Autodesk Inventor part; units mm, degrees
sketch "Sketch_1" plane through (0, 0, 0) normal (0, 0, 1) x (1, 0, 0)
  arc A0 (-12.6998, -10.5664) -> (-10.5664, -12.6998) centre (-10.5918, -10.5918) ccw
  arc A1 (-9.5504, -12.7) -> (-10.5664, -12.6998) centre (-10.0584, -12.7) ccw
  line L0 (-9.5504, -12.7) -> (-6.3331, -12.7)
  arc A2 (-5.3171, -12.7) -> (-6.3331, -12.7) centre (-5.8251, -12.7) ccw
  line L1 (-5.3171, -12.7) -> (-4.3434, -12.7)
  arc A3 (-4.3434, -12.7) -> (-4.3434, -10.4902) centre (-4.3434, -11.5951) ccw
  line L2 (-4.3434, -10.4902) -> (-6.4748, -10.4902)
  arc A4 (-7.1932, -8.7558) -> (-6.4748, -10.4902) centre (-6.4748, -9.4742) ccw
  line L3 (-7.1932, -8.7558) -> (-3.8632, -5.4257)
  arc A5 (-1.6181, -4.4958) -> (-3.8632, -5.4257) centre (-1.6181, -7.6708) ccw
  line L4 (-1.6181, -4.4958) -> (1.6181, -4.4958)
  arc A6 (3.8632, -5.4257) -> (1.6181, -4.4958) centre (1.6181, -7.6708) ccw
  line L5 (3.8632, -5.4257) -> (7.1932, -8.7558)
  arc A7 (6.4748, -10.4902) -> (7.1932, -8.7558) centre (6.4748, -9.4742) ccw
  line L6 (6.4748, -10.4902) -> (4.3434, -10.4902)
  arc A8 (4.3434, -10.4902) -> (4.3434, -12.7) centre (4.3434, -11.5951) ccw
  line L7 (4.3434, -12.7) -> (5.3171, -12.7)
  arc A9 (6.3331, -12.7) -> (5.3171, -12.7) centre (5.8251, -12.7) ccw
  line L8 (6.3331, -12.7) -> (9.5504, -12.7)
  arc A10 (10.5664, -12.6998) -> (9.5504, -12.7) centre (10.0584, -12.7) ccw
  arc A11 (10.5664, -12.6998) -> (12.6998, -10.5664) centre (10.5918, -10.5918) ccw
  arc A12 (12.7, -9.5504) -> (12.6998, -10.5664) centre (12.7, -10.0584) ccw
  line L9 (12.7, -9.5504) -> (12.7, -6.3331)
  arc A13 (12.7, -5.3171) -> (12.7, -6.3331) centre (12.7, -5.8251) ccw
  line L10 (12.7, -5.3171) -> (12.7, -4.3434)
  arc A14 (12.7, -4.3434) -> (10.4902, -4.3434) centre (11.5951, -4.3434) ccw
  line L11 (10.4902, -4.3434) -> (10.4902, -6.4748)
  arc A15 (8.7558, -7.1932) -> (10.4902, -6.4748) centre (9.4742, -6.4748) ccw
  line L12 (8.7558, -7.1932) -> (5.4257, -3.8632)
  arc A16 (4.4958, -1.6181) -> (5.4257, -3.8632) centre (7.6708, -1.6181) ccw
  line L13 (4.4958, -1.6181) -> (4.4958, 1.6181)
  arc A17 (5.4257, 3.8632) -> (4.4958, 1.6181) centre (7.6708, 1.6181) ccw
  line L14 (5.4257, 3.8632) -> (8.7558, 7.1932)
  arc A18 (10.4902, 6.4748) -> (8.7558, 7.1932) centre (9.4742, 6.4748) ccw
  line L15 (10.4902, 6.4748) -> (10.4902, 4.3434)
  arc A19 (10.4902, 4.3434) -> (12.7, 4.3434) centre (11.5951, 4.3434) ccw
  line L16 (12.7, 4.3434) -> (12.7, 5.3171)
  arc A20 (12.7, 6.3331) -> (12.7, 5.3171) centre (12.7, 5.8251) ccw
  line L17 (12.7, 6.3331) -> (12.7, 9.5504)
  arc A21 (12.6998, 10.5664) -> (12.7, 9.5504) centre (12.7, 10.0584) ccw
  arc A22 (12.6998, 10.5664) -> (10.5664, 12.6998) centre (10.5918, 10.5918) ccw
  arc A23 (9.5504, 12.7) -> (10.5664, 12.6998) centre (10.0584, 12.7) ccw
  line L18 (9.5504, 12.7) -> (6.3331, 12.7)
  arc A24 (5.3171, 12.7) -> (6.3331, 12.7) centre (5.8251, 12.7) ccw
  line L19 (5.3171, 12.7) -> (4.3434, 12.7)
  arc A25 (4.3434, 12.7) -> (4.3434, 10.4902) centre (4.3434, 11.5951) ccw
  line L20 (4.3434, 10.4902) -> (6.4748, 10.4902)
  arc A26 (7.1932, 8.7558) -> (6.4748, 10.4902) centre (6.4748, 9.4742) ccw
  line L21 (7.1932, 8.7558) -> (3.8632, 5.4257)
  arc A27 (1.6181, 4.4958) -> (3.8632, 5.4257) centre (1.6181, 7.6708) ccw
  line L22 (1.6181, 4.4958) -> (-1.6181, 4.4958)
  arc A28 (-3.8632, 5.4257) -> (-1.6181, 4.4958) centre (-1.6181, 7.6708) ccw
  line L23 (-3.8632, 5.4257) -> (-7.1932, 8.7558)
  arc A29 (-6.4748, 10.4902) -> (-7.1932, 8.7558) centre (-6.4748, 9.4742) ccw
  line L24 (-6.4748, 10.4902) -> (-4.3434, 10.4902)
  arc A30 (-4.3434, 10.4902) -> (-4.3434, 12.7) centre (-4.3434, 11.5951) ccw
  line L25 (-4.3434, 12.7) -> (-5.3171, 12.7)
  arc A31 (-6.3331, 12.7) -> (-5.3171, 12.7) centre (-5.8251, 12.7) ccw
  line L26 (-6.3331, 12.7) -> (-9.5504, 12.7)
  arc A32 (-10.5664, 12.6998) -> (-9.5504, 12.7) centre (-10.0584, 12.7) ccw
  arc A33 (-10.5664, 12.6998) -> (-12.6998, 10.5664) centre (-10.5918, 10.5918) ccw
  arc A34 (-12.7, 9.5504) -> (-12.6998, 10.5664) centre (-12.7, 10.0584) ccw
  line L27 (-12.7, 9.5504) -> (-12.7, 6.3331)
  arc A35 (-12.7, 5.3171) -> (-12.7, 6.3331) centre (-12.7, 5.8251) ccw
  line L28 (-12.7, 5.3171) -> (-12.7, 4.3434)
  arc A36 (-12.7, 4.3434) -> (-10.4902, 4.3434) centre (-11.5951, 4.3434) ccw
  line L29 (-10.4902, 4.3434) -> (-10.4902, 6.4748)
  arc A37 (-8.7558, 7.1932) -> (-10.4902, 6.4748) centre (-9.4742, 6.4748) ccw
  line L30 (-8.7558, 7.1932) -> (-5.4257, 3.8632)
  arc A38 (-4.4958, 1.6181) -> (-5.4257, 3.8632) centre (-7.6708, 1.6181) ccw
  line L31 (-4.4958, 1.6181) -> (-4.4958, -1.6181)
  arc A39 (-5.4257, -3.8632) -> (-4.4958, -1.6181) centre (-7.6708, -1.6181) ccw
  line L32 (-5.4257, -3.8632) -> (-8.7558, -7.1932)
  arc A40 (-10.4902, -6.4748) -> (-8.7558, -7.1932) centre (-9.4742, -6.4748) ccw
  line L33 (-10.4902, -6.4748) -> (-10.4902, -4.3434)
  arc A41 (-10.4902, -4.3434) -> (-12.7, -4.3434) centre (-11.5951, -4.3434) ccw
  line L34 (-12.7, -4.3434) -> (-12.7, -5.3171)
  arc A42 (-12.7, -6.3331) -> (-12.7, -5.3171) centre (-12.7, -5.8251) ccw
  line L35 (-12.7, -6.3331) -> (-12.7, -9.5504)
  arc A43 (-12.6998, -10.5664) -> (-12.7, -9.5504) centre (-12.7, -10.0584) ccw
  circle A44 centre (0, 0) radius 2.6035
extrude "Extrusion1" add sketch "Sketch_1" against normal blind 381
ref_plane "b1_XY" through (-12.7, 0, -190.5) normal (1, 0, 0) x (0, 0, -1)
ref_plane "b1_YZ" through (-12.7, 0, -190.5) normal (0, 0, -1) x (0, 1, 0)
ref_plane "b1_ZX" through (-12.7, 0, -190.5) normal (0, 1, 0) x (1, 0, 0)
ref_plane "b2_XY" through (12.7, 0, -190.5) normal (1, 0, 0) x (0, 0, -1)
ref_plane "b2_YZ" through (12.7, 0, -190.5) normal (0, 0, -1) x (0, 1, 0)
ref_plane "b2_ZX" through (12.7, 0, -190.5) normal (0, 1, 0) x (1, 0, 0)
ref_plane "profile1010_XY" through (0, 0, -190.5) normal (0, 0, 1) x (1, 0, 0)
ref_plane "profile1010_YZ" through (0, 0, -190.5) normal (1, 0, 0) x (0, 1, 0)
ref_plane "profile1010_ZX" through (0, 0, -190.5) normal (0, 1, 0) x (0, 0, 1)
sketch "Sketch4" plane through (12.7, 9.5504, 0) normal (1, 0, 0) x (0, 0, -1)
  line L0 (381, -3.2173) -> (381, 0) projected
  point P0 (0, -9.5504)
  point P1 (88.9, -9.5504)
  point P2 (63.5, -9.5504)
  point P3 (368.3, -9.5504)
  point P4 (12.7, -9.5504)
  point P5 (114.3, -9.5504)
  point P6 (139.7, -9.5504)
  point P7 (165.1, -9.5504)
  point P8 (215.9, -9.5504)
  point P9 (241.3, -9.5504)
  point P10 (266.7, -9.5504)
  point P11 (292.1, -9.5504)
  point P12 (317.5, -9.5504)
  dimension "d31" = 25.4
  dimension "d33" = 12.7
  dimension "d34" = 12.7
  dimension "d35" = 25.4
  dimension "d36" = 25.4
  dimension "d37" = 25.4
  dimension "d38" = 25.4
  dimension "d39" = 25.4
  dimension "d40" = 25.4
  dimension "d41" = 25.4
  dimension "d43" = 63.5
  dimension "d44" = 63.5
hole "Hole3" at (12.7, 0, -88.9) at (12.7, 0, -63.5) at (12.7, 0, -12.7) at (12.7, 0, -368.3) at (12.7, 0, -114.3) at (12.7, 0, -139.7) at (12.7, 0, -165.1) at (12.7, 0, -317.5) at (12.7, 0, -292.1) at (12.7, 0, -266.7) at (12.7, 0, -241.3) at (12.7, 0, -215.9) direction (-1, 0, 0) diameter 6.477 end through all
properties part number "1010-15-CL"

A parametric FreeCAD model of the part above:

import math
import FreeCAD as App
import Part
import Sketcher

V = App.Vector
Q = App.Units.Quantity

doc = App.newDocument("Part")
body = doc.addObject("PartDesign::Body", "Body")

sketch1 = body.newObject("Sketcher::SketchObject", "Sketch")
sketch1.AttachmentSupport = (doc.getObject("XY_Plane"), [""])
sketch1.MapMode = "FlatFace"
sketch1.addGeometry([
    Part.ArcOfCircle(Part.Circle(V(-12.7, -10.1, 0), V(0, 0, 1), 0.5), math.radians(-90), math.radians(90)),
    Part.ArcOfCircle(Part.Circle(V(-10.6, -10.6, 0), V(0, 0, 1), 2.1), math.radians(179), math.radians(271)),
    Part.ArcOfCircle(Part.Circle(V(-10.1, -12.7, 0), V(0, 0, 1), 0.5), math.radians(0), math.radians(180)),
    Part.LineSegment(V(-9.6, -12.7, 0), V(-6.3, -12.7, 0)),
    Part.ArcOfCircle(Part.Circle(V(-5.8, -12.7, 0), V(0, 0, 1), 0.5), math.radians(0), math.radians(180)),
    Part.LineSegment(V(-5.3, -12.7, 0), V(-4.3, -12.7, 0)),
    Part.ArcOfCircle(Part.Circle(V(-4.3, -11.6, 0), V(0, 0, 1), 1.1), math.radians(-90), math.radians(90)),
    Part.LineSegment(V(-4.3, -10.5, 0), V(-6.5, -10.5, 0)),
    Part.ArcOfCircle(Part.Circle(V(-6.5, -9.5, 0), V(0, 0, 1), 1), math.radians(135), math.radians(270)),
    Part.LineSegment(V(-7.2, -8.8, 0), V(-3.9, -5.4, 0)),
    Part.ArcOfCircle(Part.Circle(V(-1.6, -7.7, 0), V(0, 0, 1), 3.2), math.radians(90), math.radians(135)),
    Part.LineSegment(V(-1.6, -4.5, 0), V(1.6, -4.5, 0)),
    Part.ArcOfCircle(Part.Circle(V(1.6, -7.7, 0), V(0, 0, 1), 3.2), math.radians(45), math.radians(90)),
    Part.LineSegment(V(3.9, -5.4, 0), V(7.2, -8.8, 0)),
    Part.ArcOfCircle(Part.Circle(V(6.5, -9.5, 0), V(0, 0, 1), 1), math.radians(-90), math.radians(45)),
    Part.LineSegment(V(6.5, -10.5, 0), V(4.3, -10.5, 0)),
    Part.ArcOfCircle(Part.Circle(V(4.3, -11.6, 0), V(0, 0, 1), 1.1), math.radians(90), math.radians(270)),
    Part.LineSegment(V(4.3, -12.7, 0), V(5.3, -12.7, 0)),
    Part.ArcOfCircle(Part.Circle(V(5.8, -12.7, 0), V(0, 0, 1), 0.5), math.radians(0), math.radians(180)),
    Part.LineSegment(V(6.3, -12.7, 0), V(9.6, -12.7, 0)),
    Part.ArcOfCircle(Part.Circle(V(10.1, -12.7, 0), V(0, 0, 1), 0.5), math.radians(0), math.radians(180)),
    Part.ArcOfCircle(Part.Circle(V(10.6, -10.6, 0), V(0, 0, 1), 2.1), math.radians(-91), math.radians(1)),
    Part.ArcOfCircle(Part.Circle(V(12.7, -10.1, 0), V(0, 0, 1), 0.5), math.radians(90), math.radians(270)),
    Part.LineSegment(V(12.7, -9.6, 0), V(12.7, -6.3, 0)),
    Part.ArcOfCircle(Part.Circle(V(12.7, -5.8, 0), V(0, 0, 1), 0.5), math.radians(90), math.radians(270)),
    Part.LineSegment(V(12.7, -5.3, 0), V(12.7, -4.3, 0)),
    Part.ArcOfCircle(Part.Circle(V(11.6, -4.3, 0), V(0, 0, 1), 1.1), math.radians(0), math.radians(180)),
    Part.LineSegment(V(10.5, -4.3, 0), V(10.5, -6.5, 0)),
    Part.ArcOfCircle(Part.Circle(V(9.5, -6.5, 0), V(0, 0, 1), 1), math.radians(-135), math.radians(0)),
    Part.LineSegment(V(8.8, -7.2, 0), V(5.4, -3.9, 0)),
    Part.ArcOfCircle(Part.Circle(V(7.7, -1.6, 0), V(0, 0, 1), 3.2), math.radians(180), math.radians(225)),
    Part.LineSegment(V(4.5, -1.6, 0), V(4.5, 1.6, 0)),
    Part.ArcOfCircle(Part.Circle(V(7.7, 1.6, 0), V(0, 0, 1), 3.2), math.radians(135), math.radians(180)),
    Part.LineSegment(V(5.4, 3.9, 0), V(8.8, 7.2, 0)),
    Part.ArcOfCircle(Part.Circle(V(9.5, 6.5, 0), V(0, 0, 1), 1), math.radians(0), math.radians(135)),
    Part.LineSegment(V(10.5, 6.5, 0), V(10.5, 4.3, 0)),
    Part.ArcOfCircle(Part.Circle(V(11.6, 4.3, 0), V(0, 0, 1), 1.1), math.radians(180), math.radians(360)),
    Part.LineSegment(V(12.7, 4.3, 0), V(12.7, 5.3, 0)),
    Part.ArcOfCircle(Part.Circle(V(12.7, 5.8, 0), V(0, 0, 1), 0.5), math.radians(90), math.radians(270)),
    Part.LineSegment(V(12.7, 6.3, 0), V(12.7, 9.6, 0)),
    Part.ArcOfCircle(Part.Circle(V(12.7, 10.1, 0), V(0, 0, 1), 0.5), math.radians(90), math.radians(270)),
    Part.ArcOfCircle(Part.Circle(V(10.6, 10.6, 0), V(0, 0, 1), 2.1), math.radians(-1), math.radians(91)),
    Part.ArcOfCircle(Part.Circle(V(10.1, 12.7, 0), V(0, 0, 1), 0.5), math.radians(180), math.radians(360)),
    Part.LineSegment(V(9.6, 12.7, 0), V(6.3, 12.7, 0)),
    Part.ArcOfCircle(Part.Circle(V(5.8, 12.7, 0), V(0, 0, 1), 0.5), math.radians(180), math.radians(360)),
    Part.LineSegment(V(5.3, 12.7, 0), V(4.3, 12.7, 0)),
    Part.ArcOfCircle(Part.Circle(V(4.3, 11.6, 0), V(0, 0, 1), 1.1), math.radians(90), math.radians(270)),
    Part.LineSegment(V(4.3, 10.5, 0), V(6.5, 10.5, 0)),
    Part.ArcOfCircle(Part.Circle(V(6.5, 9.5, 0), V(0, 0, 1), 1), math.radians(-45), math.radians(90)),
    Part.LineSegment(V(7.2, 8.8, 0), V(3.9, 5.4, 0)),
    Part.ArcOfCircle(Part.Circle(V(1.6, 7.7, 0), V(0, 0, 1), 3.2), math.radians(-90), math.radians(-45)),
    Part.LineSegment(V(1.6, 4.5, 0), V(-1.6, 4.5, 0)),
    Part.ArcOfCircle(Part.Circle(V(-1.6, 7.7, 0), V(0, 0, 1), 3.2), math.radians(-135), math.radians(-90)),
    Part.LineSegment(V(-3.9, 5.4, 0), V(-7.2, 8.8, 0)),
    Part.ArcOfCircle(Part.Circle(V(-6.5, 9.5, 0), V(0, 0, 1), 1), math.radians(90), math.radians(225)),
    Part.LineSegment(V(-6.5, 10.5, 0), V(-4.3, 10.5, 0)),
    Part.ArcOfCircle(Part.Circle(V(-4.3, 11.6, 0), V(0, 0, 1), 1.1), math.radians(-90), math.radians(90)),
    Part.LineSegment(V(-4.3, 12.7, 0), V(-5.3, 12.7, 0)),
    Part.ArcOfCircle(Part.Circle(V(-5.8, 12.7, 0), V(0, 0, 1), 0.5), math.radians(180), math.radians(360)),
    Part.LineSegment(V(-6.3, 12.7, 0), V(-9.6, 12.7, 0)),
    Part.ArcOfCircle(Part.Circle(V(-10.1, 12.7, 0), V(0, 0, 1), 0.5), math.radians(-180), math.radians(0)),
    Part.ArcOfCircle(Part.Circle(V(-10.6, 10.6, 0), V(0, 0, 1), 2.1), math.radians(89), math.radians(181)),
    Part.ArcOfCircle(Part.Circle(V(-12.7, 10.1, 0), V(0, 0, 1), 0.5), math.radians(-90), math.radians(90)),
    Part.LineSegment(V(-12.7, 9.6, 0), V(-12.7, 6.3, 0)),
    Part.ArcOfCircle(Part.Circle(V(-12.7, 5.8, 0), V(0, 0, 1), 0.5), math.radians(-90), math.radians(90)),
    Part.LineSegment(V(-12.7, 5.3, 0), V(-12.7, 4.3, 0)),
    Part.ArcOfCircle(Part.Circle(V(-11.6, 4.3, 0), V(0, 0, 1), 1.1), math.radians(180), math.radians(360)),
    Part.LineSegment(V(-10.5, 4.3, 0), V(-10.5, 6.5, 0)),
    Part.ArcOfCircle(Part.Circle(V(-9.5, 6.5, 0), V(0, 0, 1), 1), math.radians(45), math.radians(180)),
    Part.LineSegment(V(-8.8, 7.2, 0), V(-5.4, 3.9, 0)),
    Part.ArcOfCircle(Part.Circle(V(-7.7, 1.6, 0), V(0, 0, 1), 3.2), math.radians(0), math.radians(45)),
    Part.LineSegment(V(-4.5, 1.6, 0), V(-4.5, -1.6, 0)),
    Part.ArcOfCircle(Part.Circle(V(-7.7, -1.6, 0), V(0, 0, 1), 3.2), math.radians(-45), math.radians(0)),
    Part.LineSegment(V(-5.4, -3.9, 0), V(-8.8, -7.2, 0)),
    Part.ArcOfCircle(Part.Circle(V(-9.5, -6.5, 0), V(0, 0, 1), 1), math.radians(180), math.radians(315)),
    Part.LineSegment(V(-10.5, -6.5, 0), V(-10.5, -4.3, 0)),
    Part.ArcOfCircle(Part.Circle(V(-11.6, -4.3, 0), V(0, 0, 1), 1.1), math.radians(0), math.radians(180)),
    Part.LineSegment(V(-12.7, -4.3, 0), V(-12.7, -5.3, 0)),
    Part.ArcOfCircle(Part.Circle(V(-12.7, -5.8, 0), V(0, 0, 1), 0.5), math.radians(-90), math.radians(90)),
    Part.LineSegment(V(-12.7, -6.3, 0), V(-12.7, -9.6, 0)),
    Part.Circle(V(0, 0, 0), V(0, 0, 1), 2.6),
], False)
sketch1.addConstraint([
    Sketcher.Constraint("Coincident", 0, 1, 1, 1),
    Sketcher.Constraint("Coincident", 1, 2, 2, 2),
    Sketcher.Constraint("Coincident", 2, 1, 3, 1),
    Sketcher.Constraint("Coincident", 3, 2, 4, 2),
    Sketcher.Constraint("Coincident", 4, 1, 5, 1),
    Sketcher.Constraint("Tangent", 5, 2, 6, 1),
    Sketcher.Constraint("Tangent", 6, 2, 7, 1),
    Sketcher.Constraint("Tangent", 7, 2, 8, 2),
    Sketcher.Constraint("Tangent", 8, 1, 9, 1),
    Sketcher.Constraint("Tangent", 9, 2, 10, 2),
    Sketcher.Constraint("Tangent", 10, 1, 11, 1),
    Sketcher.Constraint("Tangent", 11, 2, 12, 2),
    Sketcher.Constraint("Tangent", 12, 1, 13, 1),
    Sketcher.Constraint("Tangent", 13, 2, 14, 2),
    Sketcher.Constraint("Tangent", 14, 1, 15, 1),
    Sketcher.Constraint("Tangent", 15, 2, 16, 1),
    Sketcher.Constraint("Tangent", 16, 2, 17, 1),
    Sketcher.Constraint("Coincident", 17, 2, 18, 2),
    Sketcher.Constraint("Coincident", 18, 1, 19, 1),
    Sketcher.Constraint("Coincident", 19, 2, 20, 2),
    Sketcher.Constraint("Coincident", 20, 1, 21, 1),
    Sketcher.Constraint("Coincident", 21, 2, 22, 2),
    Sketcher.Constraint("Coincident", 22, 1, 23, 1),
    Sketcher.Constraint("Coincident", 23, 2, 24, 2),
    Sketcher.Constraint("Coincident", 24, 1, 25, 1),
    Sketcher.Constraint("Tangent", 25, 2, 26, 1),
    Sketcher.Constraint("Tangent", 26, 2, 27, 1),
    Sketcher.Constraint("Tangent", 27, 2, 28, 2),
    Sketcher.Constraint("Tangent", 28, 1, 29, 1),
    Sketcher.Constraint("Tangent", 29, 2, 30, 2),
    Sketcher.Constraint("Tangent", 30, 1, 31, 1),
    Sketcher.Constraint("Tangent", 31, 2, 32, 2),
    Sketcher.Constraint("Tangent", 32, 1, 33, 1),
    Sketcher.Constraint("Tangent", 33, 2, 34, 2),
    Sketcher.Constraint("Tangent", 34, 1, 35, 1),
    Sketcher.Constraint("Tangent", 35, 2, 36, 1),
    Sketcher.Constraint("Tangent", 36, 2, 37, 1),
    Sketcher.Constraint("Coincident", 37, 2, 38, 2),
    Sketcher.Constraint("Coincident", 38, 1, 39, 1),
    Sketcher.Constraint("Coincident", 39, 2, 40, 2),
    Sketcher.Constraint("Coincident", 40, 1, 41, 1),
    Sketcher.Constraint("Coincident", 41, 2, 42, 2),
    Sketcher.Constraint("Coincident", 42, 1, 43, 1),
    Sketcher.Constraint("Coincident", 43, 2, 44, 2),
    Sketcher.Constraint("Coincident", 44, 1, 45, 1),
    Sketcher.Constraint("Tangent", 45, 2, 46, 1),
    Sketcher.Constraint("Tangent", 46, 2, 47, 1),
    Sketcher.Constraint("Tangent", 47, 2, 48, 2),
    Sketcher.Constraint("Tangent", 48, 1, 49, 1),
    Sketcher.Constraint("Tangent", 49, 2, 50, 2),
    Sketcher.Constraint("Tangent", 50, 1, 51, 1),
    Sketcher.Constraint("Tangent", 51, 2, 52, 2),
    Sketcher.Constraint("Tangent", 52, 1, 53, 1),
    Sketcher.Constraint("Tangent", 53, 2, 54, 2),
    Sketcher.Constraint("Tangent", 54, 1, 55, 1),
    Sketcher.Constraint("Tangent", 55, 2, 56, 1),
    Sketcher.Constraint("Tangent", 56, 2, 57, 1),
    Sketcher.Constraint("Coincident", 57, 2, 58, 2),
    Sketcher.Constraint("Coincident", 58, 1, 59, 1),
    Sketcher.Constraint("Coincident", 59, 2, 60, 2),
    Sketcher.Constraint("Coincident", 60, 1, 61, 1),
    Sketcher.Constraint("Coincident", 61, 2, 62, 2),
    Sketcher.Constraint("Coincident", 62, 1, 63, 1),
    Sketcher.Constraint("Coincident", 63, 2, 64, 2),
    Sketcher.Constraint("Coincident", 64, 1, 65, 1),
    Sketcher.Constraint("Tangent", 65, 2, 66, 1),
    Sketcher.Constraint("Tangent", 66, 2, 67, 1),
    Sketcher.Constraint("Tangent", 67, 2, 68, 2),
    Sketcher.Constraint("Tangent", 68, 1, 69, 1),
    Sketcher.Constraint("Tangent", 69, 2, 70, 2),
    Sketcher.Constraint("Tangent", 70, 1, 71, 1),
    Sketcher.Constraint("Tangent", 71, 2, 72, 2),
    Sketcher.Constraint("Tangent", 72, 1, 73, 1),
    Sketcher.Constraint("Tangent", 73, 2, 74, 2),
    Sketcher.Constraint("Tangent", 74, 1, 75, 1),
    Sketcher.Constraint("Tangent", 75, 2, 76, 1),
    Sketcher.Constraint("Tangent", 76, 2, 77, 1),
    Sketcher.Constraint("Coincident", 77, 2, 78, 2),
    Sketcher.Constraint("Coincident", 78, 1, 79, 1),
    Sketcher.Constraint("Coincident", 79, 2, 0, 2),
    Sketcher.Constraint("Horizontal", 3),
    Sketcher.Constraint("Horizontal", 5),
    Sketcher.Constraint("Horizontal", 7),
    Sketcher.Constraint("Horizontal", 11),
    Sketcher.Constraint("Horizontal", 15),
    Sketcher.Constraint("Horizontal", 17),
    Sketcher.Constraint("Horizontal", 19),
    Sketcher.Constraint("Vertical", 23),
    Sketcher.Constraint("Vertical", 25),
    Sketcher.Constraint("Vertical", 27),
    Sketcher.Constraint("Vertical", 31),
    Sketcher.Constraint("Vertical", 35),
    Sketcher.Constraint("Vertical", 37),
    Sketcher.Constraint("Vertical", 39),
    Sketcher.Constraint("Horizontal", 43),
    Sketcher.Constraint("Horizontal", 45),
    Sketcher.Constraint("Horizontal", 47),
    Sketcher.Constraint("Horizontal", 51),
    Sketcher.Constraint("Horizontal", 55),
    Sketcher.Constraint("Horizontal", 57),
    Sketcher.Constraint("Horizontal", 59),
    Sketcher.Constraint("Vertical", 63),
    Sketcher.Constraint("Vertical", 65),
    Sketcher.Constraint("Vertical", 67),
    Sketcher.Constraint("Vertical", 71),
    Sketcher.Constraint("Vertical", 75),
    Sketcher.Constraint("Vertical", 77),
    Sketcher.Constraint("Vertical", 79),
    Sketcher.Constraint("Coincident", 80, 3, -1, 1),
    Sketcher.Constraint("Equal", 0, 2),
    Sketcher.Constraint("Equal", 2, 4),
    Sketcher.Constraint("Equal", 10, 12),
    Sketcher.Constraint("Equal", 8, 14),
    Sketcher.Constraint("Equal", 6, 16),
    Sketcher.Constraint("Equal", 4, 18),
    Sketcher.Constraint("Equal", 18, 20),
    Sketcher.Constraint("Equal", 1, 21),
    Sketcher.Constraint("Equal", 20, 22),
    Sketcher.Constraint("Equal", 22, 24),
    Sketcher.Constraint("Equal", 16, 26),
    Sketcher.Constraint("Equal", 14, 28),
    Sketcher.Constraint("Equal", 12, 30),
    Sketcher.Constraint("Equal", 30, 32),
    Sketcher.Constraint("Equal", 28, 34),
    Sketcher.Constraint("Equal", 26, 36),
    Sketcher.Constraint("Equal", 24, 38),
    Sketcher.Constraint("Equal", 38, 40),
    Sketcher.Constraint("Equal", 21, 41),
    Sketcher.Constraint("Equal", 40, 42),
    Sketcher.Constraint("Equal", 42, 44),
    Sketcher.Constraint("Equal", 36, 46),
    Sketcher.Constraint("Equal", 34, 48),
    Sketcher.Constraint("Equal", 32, 50),
    Sketcher.Constraint("Equal", 50, 52),
    Sketcher.Constraint("Equal", 48, 54),
    Sketcher.Constraint("Equal", 46, 56),
    Sketcher.Constraint("Equal", 44, 58),
    Sketcher.Constraint("Equal", 58, 60),
    Sketcher.Constraint("Equal", 41, 61),
    Sketcher.Constraint("Equal", 60, 62),
    Sketcher.Constraint("Equal", 62, 64),
    Sketcher.Constraint("Equal", 56, 66),
    Sketcher.Constraint("Equal", 54, 68),
    Sketcher.Constraint("Equal", 52, 70),
    Sketcher.Constraint("Equal", 70, 72),
    Sketcher.Constraint("Equal", 68, 74),
    Sketcher.Constraint("Equal", 66, 76),
    Sketcher.Constraint("Equal", 64, 78),
    Sketcher.Constraint("Symmetric", 0, 3, 40, 3, -1, 1),
    Sketcher.Constraint("Symmetric", 1, 3, 41, 3, -1, 1),
    Sketcher.Constraint("Symmetric", 2, 3, 42, 3, -1, 1),
    Sketcher.Constraint("Symmetric", 4, 3, 44, 3, -1, 1),
    Sketcher.Constraint("Symmetric", 6, 3, 46, 3, -1, 1),
    Sketcher.Constraint("Symmetric", 10, 3, 50, 3, -1, 1),
    Sketcher.Constraint("Symmetric", 14, 3, 54, 3, -1, 1),
    Sketcher.Constraint("Symmetric", 18, 3, 58, 3, -1, 1),
    Sketcher.Constraint("Symmetric", 20, 3, 60, 3, -1, 1),
    Sketcher.Constraint("Symmetric", 21, 3, 61, 3, -1, 1),
    Sketcher.Constraint("Symmetric", 22, 3, 62, 3, -1, 1),
    Sketcher.Constraint("Symmetric", 24, 3, 64, 3, -1, 1),
    Sketcher.Constraint("Symmetric", 26, 3, 66, 3, -1, 1),
    Sketcher.Constraint("Symmetric", 30, 3, 70, 3, -1, 1),
    Sketcher.Constraint("Symmetric", 34, 3, 74, 3, -1, 1),
    Sketcher.Constraint("Symmetric", 38, 3, 78, 3, -1, 1),
    Sketcher.Constraint("Symmetric", 8, 3, 14, 3, -2),
    Sketcher.Constraint("Symmetric", 4, 3, 18, 3, -2),
    Sketcher.Constraint("Symmetric", 2, 3, 20, 3, -2),
    Sketcher.Constraint("Symmetric", 1, 3, 21, 3, -2),
    Sketcher.Constraint("Symmetric", 0, 3, 22, 3, -2),
    Sketcher.Constraint("Symmetric", 38, 3, 64, 3, -2),
    Sketcher.Constraint("Symmetric", 36, 3, 66, 3, -2),
    Sketcher.Constraint("Symmetric", 49, 2, 52, 1, -2),
    Sketcher.Constraint("Symmetric", 33, 2, 68, 1, -2),
    Sketcher.Constraint("Symmetric", 29, 2, 72, 1, -2),
    Sketcher.Constraint("Perpendicular", 9, 13),
    Sketcher.Constraint("Parallel", 13, 29),
    Sketcher.Constraint("Perpendicular", 29, 33),
    Sketcher.Constraint("Horizontal", 2, 3, 4, 3),
    Sketcher.Constraint("Horizontal", 26, 3, 76, 3),
    Sketcher.Constraint("Horizontal", 20, 3, 1, 2),
    Sketcher.Constraint("Horizontal", 1, 2, 2, 1),
    Sketcher.Constraint("Horizontal", 3, 2, 4, 1),
    Sketcher.Constraint("Horizontal", 17, 2, 18, 1),
    Sketcher.Constraint("Horizontal", 41, 2, 42, 1),
    Sketcher.Constraint("Horizontal", 57, 2, 58, 1),
    Sketcher.Constraint("Vertical", 22, 3, 24, 3),
    Sketcher.Constraint("Vertical", 16, 3, 46, 3),
    Sketcher.Constraint("Vertical", 6, 3, 56, 3),
    Sketcher.Constraint("Vertical", 78, 3, 0, 1),
    Sketcher.Constraint("Vertical", 21, 2, 22, 1),
    Sketcher.Constraint("Vertical", 23, 2, 24, 1),
    Sketcher.Constraint("Vertical", 37, 2, 38, 1),
    Sketcher.Constraint("Vertical", 61, 2, 62, 1),
    Sketcher.Constraint("Vertical", 77, 2, 78, 1),
    Sketcher.Constraint("Equal", 59, 23),
    Sketcher.Constraint("Equal", 57, 25),
    Sketcher.Constraint("Equal", 55, 27),
    Sketcher.Constraint("Equal", 51, 31),
    Sketcher.Constraint("Equal", 13, 29),
    Sketcher.Constraint("Radius", 0, Q("0.02 in")),
    Sketcher.Constraint("Radius", 8, Q("0.04 in")),
    Sketcher.Constraint("Diameter", 80, Q("0.205 in")),
    Sketcher.Constraint("Radius", 1, Q("0.083 in")),
    Sketcher.Constraint("Radius", 10, Q("0.125 in")),
    Sketcher.Constraint("DistanceX", 0, 3, -1, 1, Q("0.5 in")),
    Sketcher.Constraint("DistanceY", 2, 3, -1, 1, Q("0.5 in")),
    Sketcher.Constraint("Radius", 6, Q("0.0435 in")),
    Sketcher.Constraint("DistanceX", 11, 1, 11, 2, Q("0.1274 in")),
    Sketcher.Constraint("DistanceY", 0, 3, -1, 1, Q("0.396 in")),
    Sketcher.Constraint("DistanceX", 6, 3, -1, 1, Q("0.171 in")),
    Sketcher.Constraint("DistanceY", 10, 3, -1, 1, Q("0.302 in")),
    Sketcher.Constraint("DistanceX", 3, 1, 3, 2, Q("3.2173 mm")),
])
pad1 = body.newObject("PartDesign::Pad", "Pad")
pad1.Profile = sketch1
pad1.Length = Q("15 in")
pad1.Reversed = True

sketch2 = body.newObject("Sketcher::SketchObject", "Sketch001")
sketch2.AttachmentSupport = (doc.getObject("YZ_Plane"), [""])
sketch2.MapMode = "FlatFace"
sketch2.AttachmentOffset = App.Placement(V(0, 0, 0.5 * 25.4), App.Rotation())
sketch2.addGeometry([
    Part.Circle(V(0, -88.9, 0), V(0, 0, 1), 3.2),
    Part.Circle(V(0, -63.5, 0), V(0, 0, 1), 3.2),
    Part.Circle(V(0, -12.7, 0), V(0, 0, 1), 3.2),
    Part.Circle(V(0, -368.3, 0), V(0, 0, 1), 3.2),
    Part.Circle(V(0, -114.3, 0), V(0, 0, 1), 3.2),
    Part.Circle(V(0, -139.7, 0), V(0, 0, 1), 3.2),
    Part.Circle(V(0, -165.1, 0), V(0, 0, 1), 3.2),
    Part.Circle(V(0, -317.5, 0), V(0, 0, 1), 3.2),
    Part.Circle(V(0, -292.1, 0), V(0, 0, 1), 3.2),
    Part.Circle(V(0, -266.7, 0), V(0, 0, 1), 3.2),
    Part.Circle(V(0, -241.3, 0), V(0, 0, 1), 3.2),
    Part.Circle(V(0, -215.9, 0), V(0, 0, 1), 3.2),
], False)
sketch2.addConstraint([
    Sketcher.Constraint("Equal", 0, 1),
    Sketcher.Constraint("Equal", 1, 2),
    Sketcher.Constraint("Equal", 2, 3),
    Sketcher.Constraint("Equal", 3, 4),
    Sketcher.Constraint("Equal", 4, 5),
    Sketcher.Constraint("Equal", 5, 6),
    Sketcher.Constraint("Equal", 6, 7),
    Sketcher.Constraint("Equal", 7, 8),
    Sketcher.Constraint("Equal", 8, 9),
    Sketcher.Constraint("Equal", 9, 10),
    Sketcher.Constraint("Equal", 10, 11),
    Sketcher.Constraint("PointOnObject", 0, 3, -2),
    Sketcher.Constraint("PointOnObject", 1, 3, -2),
    Sketcher.Constraint("PointOnObject", 2, 3, -2),
    Sketcher.Constraint("PointOnObject", 3, 3, -2),
    Sketcher.Constraint("PointOnObject", 4, 3, -2),
    Sketcher.Constraint("PointOnObject", 5, 3, -2),
    Sketcher.Constraint("PointOnObject", 6, 3, -2),
    Sketcher.Constraint("PointOnObject", 7, 3, -2),
    Sketcher.Constraint("PointOnObject", 8, 3, -2),
    Sketcher.Constraint("PointOnObject", 9, 3, -2),
    Sketcher.Constraint("PointOnObject", 10, 3, -2),
    Sketcher.Constraint("PointOnObject", 11, 3, -2),
    Sketcher.Constraint("Diameter", 0, Q("0.255 in")),
    Sketcher.Constraint("DistanceY", 0, 3, 1, 3, Q("1 in")),
    Sketcher.Constraint("DistanceY", 1, 3, 2, 3, Q("2 in")),
    Sketcher.Constraint("DistanceY", 3, 3, 0, 3, Q("11 in")),
    Sketcher.Constraint("DistanceY", 4, 3, 0, 3, Q("1 in")),
    Sketcher.Constraint("DistanceY", 5, 3, 4, 3, Q("1 in")),
    Sketcher.Constraint("DistanceY", 6, 3, 5, 3, Q("1 in")),
    Sketcher.Constraint("DistanceY", 3, 3, 7, 3, Q("2 in")),
    Sketcher.Constraint("DistanceY", 7, 3, 8, 3, Q("1 in")),
    Sketcher.Constraint("DistanceY", 8, 3, 9, 3, Q("1 in")),
    Sketcher.Constraint("DistanceY", 9, 3, 10, 3, Q("1 in")),
    Sketcher.Constraint("DistanceY", 10, 3, 11, 3, Q("1 in")),
    Sketcher.Constraint("DistanceY", 0, 3, -1, 1, Q("3.5 in")),
])
doc.recompute()
hole = body.newObject("PartDesign::Hole", "Hole")
hole.Profile = sketch2
hole.ThreadType = "None"
hole.Diameter = Q("0.255 in")
hole.DepthType = "ThroughAll"

doc.recompute()
